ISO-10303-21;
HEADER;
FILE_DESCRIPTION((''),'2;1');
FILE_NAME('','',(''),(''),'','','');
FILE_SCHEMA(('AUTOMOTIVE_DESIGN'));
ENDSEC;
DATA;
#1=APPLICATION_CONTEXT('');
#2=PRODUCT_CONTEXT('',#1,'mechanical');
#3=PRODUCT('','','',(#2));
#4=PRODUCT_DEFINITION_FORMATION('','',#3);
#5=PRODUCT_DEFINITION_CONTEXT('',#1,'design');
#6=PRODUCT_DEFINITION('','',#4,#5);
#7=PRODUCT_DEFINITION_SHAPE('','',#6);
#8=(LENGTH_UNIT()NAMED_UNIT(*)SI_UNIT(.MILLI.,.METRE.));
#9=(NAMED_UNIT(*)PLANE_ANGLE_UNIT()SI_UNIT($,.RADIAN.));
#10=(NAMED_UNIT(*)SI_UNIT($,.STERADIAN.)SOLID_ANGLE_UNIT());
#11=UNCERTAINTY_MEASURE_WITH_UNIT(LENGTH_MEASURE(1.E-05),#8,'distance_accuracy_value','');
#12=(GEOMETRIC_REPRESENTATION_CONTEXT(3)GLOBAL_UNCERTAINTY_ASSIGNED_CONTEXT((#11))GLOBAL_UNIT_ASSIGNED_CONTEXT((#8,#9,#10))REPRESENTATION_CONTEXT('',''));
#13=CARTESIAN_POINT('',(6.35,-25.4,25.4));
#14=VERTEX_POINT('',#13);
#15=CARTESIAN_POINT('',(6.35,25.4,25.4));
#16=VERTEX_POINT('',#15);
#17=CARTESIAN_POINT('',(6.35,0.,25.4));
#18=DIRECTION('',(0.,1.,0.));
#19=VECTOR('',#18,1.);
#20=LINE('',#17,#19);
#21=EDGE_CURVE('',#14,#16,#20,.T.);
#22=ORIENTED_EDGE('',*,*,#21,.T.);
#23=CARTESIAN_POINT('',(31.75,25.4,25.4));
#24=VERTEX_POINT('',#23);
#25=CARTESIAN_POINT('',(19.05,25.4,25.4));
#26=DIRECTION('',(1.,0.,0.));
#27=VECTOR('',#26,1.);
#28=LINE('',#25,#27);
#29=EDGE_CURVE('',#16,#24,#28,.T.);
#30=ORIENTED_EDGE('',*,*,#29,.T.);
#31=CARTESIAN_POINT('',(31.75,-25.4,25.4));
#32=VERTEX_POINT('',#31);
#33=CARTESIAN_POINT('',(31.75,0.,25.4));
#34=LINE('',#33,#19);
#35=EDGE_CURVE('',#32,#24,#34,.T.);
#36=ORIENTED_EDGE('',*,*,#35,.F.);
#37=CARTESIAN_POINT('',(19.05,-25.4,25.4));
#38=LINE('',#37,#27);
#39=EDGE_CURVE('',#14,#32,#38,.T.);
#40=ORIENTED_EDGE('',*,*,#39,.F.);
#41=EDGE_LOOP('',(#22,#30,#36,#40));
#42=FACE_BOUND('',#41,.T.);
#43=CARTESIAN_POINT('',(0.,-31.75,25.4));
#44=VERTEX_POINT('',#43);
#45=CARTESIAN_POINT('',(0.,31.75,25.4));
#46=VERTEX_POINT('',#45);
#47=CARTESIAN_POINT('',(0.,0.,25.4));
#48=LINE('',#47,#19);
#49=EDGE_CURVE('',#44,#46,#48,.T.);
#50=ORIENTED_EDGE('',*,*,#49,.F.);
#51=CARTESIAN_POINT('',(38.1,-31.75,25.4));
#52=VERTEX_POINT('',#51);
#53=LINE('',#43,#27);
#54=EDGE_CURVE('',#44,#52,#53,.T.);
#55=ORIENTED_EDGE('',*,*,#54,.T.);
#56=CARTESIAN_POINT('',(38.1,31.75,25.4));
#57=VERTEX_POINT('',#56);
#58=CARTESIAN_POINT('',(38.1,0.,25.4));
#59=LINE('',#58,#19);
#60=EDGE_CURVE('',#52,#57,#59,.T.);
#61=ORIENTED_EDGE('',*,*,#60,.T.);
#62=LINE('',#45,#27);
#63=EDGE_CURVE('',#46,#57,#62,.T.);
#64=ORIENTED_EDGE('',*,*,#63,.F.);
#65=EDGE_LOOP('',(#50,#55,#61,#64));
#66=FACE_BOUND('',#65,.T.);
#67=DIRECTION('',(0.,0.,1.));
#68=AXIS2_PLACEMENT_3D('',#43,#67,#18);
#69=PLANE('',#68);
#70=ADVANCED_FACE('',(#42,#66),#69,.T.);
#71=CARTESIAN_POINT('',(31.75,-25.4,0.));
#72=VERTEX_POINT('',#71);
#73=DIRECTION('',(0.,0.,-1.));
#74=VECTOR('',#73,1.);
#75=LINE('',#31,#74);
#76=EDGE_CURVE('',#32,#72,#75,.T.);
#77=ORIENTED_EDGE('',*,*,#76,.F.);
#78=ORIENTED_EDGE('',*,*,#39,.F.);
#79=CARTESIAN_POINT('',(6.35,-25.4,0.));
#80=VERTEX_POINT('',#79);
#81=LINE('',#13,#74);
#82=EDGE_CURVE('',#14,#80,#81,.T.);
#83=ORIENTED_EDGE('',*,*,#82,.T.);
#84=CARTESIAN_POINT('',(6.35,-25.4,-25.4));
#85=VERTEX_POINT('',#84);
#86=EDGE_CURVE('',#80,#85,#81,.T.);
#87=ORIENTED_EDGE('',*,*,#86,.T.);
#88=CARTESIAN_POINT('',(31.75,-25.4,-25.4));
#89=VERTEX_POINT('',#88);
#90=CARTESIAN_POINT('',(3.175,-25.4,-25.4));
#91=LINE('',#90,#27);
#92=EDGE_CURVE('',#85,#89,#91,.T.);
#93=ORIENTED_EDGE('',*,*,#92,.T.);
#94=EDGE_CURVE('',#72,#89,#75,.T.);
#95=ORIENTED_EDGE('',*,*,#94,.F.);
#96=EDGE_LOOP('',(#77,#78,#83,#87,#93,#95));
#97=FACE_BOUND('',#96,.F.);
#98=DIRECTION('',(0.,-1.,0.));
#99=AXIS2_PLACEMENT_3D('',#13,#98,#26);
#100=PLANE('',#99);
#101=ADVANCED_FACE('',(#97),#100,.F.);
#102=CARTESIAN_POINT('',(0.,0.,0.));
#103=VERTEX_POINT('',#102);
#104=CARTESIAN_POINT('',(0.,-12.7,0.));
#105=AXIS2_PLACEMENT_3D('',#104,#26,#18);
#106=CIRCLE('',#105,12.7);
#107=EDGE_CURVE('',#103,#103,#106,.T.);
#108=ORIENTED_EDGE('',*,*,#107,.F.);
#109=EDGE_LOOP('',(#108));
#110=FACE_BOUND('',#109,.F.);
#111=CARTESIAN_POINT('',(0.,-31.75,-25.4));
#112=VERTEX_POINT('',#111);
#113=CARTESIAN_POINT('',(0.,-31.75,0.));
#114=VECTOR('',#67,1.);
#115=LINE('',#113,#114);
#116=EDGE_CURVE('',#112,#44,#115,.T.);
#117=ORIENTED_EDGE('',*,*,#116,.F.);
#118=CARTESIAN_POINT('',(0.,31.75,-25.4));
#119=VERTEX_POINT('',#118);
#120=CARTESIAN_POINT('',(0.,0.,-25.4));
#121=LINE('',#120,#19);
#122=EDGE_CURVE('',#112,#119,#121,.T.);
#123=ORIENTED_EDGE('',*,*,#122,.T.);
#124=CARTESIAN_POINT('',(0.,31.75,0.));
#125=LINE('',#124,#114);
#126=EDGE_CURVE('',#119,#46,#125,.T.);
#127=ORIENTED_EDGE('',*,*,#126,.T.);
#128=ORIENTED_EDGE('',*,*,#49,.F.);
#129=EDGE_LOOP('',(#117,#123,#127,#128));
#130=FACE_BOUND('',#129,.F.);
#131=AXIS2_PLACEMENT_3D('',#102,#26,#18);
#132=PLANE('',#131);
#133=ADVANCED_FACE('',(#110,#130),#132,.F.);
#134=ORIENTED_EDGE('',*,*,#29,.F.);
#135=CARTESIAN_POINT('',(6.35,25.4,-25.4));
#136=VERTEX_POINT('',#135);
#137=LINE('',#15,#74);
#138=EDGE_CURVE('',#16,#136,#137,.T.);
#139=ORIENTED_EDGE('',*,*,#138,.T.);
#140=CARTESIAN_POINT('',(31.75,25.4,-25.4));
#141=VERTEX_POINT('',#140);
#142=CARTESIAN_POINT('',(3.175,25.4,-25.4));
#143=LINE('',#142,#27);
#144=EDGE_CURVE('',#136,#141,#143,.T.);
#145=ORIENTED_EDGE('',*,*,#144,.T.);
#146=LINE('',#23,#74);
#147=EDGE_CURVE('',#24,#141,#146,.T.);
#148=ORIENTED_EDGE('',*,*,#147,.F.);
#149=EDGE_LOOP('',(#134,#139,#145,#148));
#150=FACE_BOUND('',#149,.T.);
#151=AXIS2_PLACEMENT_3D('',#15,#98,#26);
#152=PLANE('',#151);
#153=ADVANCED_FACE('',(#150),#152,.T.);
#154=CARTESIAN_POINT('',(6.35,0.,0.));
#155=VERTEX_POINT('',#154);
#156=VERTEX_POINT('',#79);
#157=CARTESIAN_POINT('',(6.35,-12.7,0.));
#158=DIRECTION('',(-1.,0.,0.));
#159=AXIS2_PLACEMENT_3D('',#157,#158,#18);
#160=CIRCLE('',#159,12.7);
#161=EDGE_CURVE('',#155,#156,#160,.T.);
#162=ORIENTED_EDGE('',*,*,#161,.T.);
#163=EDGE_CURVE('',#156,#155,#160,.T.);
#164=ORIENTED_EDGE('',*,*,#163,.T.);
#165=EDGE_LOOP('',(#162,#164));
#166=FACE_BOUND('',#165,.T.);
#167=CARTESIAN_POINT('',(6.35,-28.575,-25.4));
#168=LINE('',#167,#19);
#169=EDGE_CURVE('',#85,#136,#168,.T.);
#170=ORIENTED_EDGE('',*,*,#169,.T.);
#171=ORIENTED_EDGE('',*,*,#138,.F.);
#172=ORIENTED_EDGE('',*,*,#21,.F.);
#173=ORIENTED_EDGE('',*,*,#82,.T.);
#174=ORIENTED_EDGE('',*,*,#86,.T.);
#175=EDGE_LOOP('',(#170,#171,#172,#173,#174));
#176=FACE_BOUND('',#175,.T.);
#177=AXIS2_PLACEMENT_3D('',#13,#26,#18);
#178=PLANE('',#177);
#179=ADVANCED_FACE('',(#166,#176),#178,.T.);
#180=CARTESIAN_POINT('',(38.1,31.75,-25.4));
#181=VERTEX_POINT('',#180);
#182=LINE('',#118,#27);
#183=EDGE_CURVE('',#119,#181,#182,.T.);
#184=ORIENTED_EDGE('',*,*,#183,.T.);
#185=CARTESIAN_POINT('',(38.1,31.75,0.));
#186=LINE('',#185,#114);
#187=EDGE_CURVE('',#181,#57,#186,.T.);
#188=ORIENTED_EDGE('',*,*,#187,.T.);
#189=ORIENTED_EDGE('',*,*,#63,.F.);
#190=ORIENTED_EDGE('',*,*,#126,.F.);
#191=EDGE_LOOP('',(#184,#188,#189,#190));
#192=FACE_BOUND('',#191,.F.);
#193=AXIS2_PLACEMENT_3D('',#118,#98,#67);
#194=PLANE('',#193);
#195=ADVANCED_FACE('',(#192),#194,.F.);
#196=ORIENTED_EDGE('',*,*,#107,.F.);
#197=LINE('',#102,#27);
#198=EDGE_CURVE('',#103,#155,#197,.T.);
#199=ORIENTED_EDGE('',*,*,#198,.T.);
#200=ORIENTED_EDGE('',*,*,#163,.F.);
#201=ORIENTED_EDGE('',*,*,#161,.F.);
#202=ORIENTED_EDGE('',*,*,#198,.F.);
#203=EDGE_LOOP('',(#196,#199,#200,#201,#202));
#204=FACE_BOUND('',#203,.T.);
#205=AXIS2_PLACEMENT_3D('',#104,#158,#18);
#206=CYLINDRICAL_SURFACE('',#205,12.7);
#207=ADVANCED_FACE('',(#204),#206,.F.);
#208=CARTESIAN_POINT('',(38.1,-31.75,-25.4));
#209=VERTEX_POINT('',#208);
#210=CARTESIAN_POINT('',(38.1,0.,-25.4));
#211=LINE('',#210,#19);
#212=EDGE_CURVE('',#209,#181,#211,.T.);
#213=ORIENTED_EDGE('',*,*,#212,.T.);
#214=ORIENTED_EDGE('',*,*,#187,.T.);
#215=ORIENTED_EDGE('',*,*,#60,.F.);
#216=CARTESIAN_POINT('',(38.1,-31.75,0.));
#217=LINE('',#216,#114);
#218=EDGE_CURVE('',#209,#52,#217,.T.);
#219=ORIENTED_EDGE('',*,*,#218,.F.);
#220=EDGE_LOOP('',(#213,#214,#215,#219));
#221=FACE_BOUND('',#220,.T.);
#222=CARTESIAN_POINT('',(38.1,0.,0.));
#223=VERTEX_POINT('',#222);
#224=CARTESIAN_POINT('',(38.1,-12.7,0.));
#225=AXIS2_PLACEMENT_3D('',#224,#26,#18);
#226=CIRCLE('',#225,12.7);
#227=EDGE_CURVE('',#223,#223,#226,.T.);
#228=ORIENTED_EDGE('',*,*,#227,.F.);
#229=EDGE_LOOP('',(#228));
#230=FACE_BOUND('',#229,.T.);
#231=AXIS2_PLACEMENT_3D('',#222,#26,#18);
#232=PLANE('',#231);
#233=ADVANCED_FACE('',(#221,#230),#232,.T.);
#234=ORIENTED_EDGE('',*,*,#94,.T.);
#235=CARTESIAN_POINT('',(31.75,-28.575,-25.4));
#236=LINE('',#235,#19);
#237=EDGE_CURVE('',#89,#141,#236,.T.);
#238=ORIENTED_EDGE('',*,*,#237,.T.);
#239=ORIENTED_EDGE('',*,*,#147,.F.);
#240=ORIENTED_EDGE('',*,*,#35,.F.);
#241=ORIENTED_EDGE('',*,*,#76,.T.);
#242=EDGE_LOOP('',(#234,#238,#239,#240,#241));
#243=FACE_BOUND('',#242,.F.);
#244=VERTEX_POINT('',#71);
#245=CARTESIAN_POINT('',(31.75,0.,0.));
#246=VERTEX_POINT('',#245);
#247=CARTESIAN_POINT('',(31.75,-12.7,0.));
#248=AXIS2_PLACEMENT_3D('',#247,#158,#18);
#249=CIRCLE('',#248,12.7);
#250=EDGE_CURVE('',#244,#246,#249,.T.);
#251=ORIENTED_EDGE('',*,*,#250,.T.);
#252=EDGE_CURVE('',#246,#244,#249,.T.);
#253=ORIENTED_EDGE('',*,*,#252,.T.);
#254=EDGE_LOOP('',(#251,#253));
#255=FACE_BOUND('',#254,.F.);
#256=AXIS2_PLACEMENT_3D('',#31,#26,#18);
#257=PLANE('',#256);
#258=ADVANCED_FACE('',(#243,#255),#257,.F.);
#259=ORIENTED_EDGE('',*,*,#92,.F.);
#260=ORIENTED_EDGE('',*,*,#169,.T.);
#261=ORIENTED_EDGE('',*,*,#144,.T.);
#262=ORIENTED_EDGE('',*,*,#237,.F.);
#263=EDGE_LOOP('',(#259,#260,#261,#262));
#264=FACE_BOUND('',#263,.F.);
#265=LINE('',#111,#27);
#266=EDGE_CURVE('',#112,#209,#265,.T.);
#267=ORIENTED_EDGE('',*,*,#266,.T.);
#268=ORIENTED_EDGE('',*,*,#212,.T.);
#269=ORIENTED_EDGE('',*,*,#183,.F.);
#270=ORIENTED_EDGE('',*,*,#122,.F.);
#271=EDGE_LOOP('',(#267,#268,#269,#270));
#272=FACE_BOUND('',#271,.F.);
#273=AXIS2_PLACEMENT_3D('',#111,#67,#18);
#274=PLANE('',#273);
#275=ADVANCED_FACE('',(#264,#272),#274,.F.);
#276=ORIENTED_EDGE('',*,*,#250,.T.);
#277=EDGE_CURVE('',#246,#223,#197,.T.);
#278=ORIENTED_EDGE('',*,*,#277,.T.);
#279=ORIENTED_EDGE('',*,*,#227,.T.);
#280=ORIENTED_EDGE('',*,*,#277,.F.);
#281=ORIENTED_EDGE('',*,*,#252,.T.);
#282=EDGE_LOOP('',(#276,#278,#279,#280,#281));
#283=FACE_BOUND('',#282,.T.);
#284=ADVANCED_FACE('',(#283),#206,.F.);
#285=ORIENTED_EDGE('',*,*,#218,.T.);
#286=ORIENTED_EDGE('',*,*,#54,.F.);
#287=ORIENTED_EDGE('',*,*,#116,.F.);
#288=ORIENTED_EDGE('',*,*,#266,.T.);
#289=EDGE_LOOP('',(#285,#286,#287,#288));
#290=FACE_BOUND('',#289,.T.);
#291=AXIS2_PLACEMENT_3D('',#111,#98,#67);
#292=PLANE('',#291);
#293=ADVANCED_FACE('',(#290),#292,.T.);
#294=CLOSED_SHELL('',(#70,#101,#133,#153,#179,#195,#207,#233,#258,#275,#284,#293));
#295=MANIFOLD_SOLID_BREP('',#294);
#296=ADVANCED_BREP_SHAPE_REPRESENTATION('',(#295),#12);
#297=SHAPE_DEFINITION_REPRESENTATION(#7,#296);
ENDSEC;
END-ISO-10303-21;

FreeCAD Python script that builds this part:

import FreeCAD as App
import Part
import Sketcher

V = App.Vector
Q = App.Units.Quantity

doc = App.newDocument("Part")
body = doc.addObject("PartDesign::Body", "Body")

# Sketch on YZ plane
sketch1 = body.newObject("Sketcher::SketchObject", "Sketch")
sketch1.AttachmentSupport = (doc.getObject("YZ_Plane"), [""])
sketch1.MapMode = "FlatFace"
sketch1.addGeometry([
    Part.LineSegment(V(-32, 25, 0), V(-32, -25, 0)),  # 0
    Part.LineSegment(V(-32, -25, 0), V(32, -25, 0)),  # 1
    Part.LineSegment(V(32, -25, 0), V(32, 25, 0)),  # 2
    Part.LineSegment(V(32, 25, 0), V(-32, 25, 0)),  # 3
    Part.Circle(V(-13, 0, 0), V(0, 0, 1), 13),  # 4
], False)
sketch1.addConstraint([
    Sketcher.Constraint("Coincident", 0, 2, 1, 1),
    Sketcher.Constraint("Coincident", 1, 2, 2, 1),
    Sketcher.Constraint("Coincident", 2, 2, 3, 1),
    Sketcher.Constraint("Coincident", 3, 2, 0, 1),
    Sketcher.Constraint("Vertical", 0),
    Sketcher.Constraint("Horizontal", 1),
    Sketcher.Constraint("Vertical", 2),
    Sketcher.Constraint("Horizontal", 3),
    Sketcher.Constraint("Symmetric", 0, 2, 2, 2, -1, 1),
    Sketcher.Constraint("PointOnObject", 4, 3, -1),
    Sketcher.Constraint("Diameter", 4, Q("1 in")),
    Sketcher.Constraint("DistanceY", 0, 2, 0, 1, Q("2 in")),
    Sketcher.Constraint("DistanceX", 1, 1, 1, 2, Q("2.5 in")),
    Sketcher.Constraint("DistanceX", 4, 3, -1, 1, Q("0.5 in")),
])
pad1 = body.newObject("PartDesign::Pad", "Pad")
pad1.Profile = sketch1
pad1.Length = Q("1.5 in")

# Sketch on XY plane
sketch2 = body.newObject("Sketcher::SketchObject", "Sketch001")
sketch2.AttachmentSupport = (doc.getObject("XY_Plane"), [""])
sketch2.MapMode = "FlatFace"
sketch2.AttachmentOffset = App.Placement(V(0, 0, 1 * 25.4), App.Rotation())
sketch2.addGeometry([
    Part.LineSegment(V(6, 25, 0), V(6, -25, 0)),
    Part.LineSegment(V(6, -25, 0), V(32, -25, 0)),
    Part.LineSegment(V(32, -25, 0), V(32, 25, 0)),
    Part.LineSegment(V(32, 25, 0), V(6, 25, 0)),
], False)
sketch2.addConstraint([
    Sketcher.Constraint("Coincident", 0, 2, 1, 1),
    Sketcher.Constraint("Coincident", 1, 2, 2, 1),
    Sketcher.Constraint("Coincident", 2, 2, 3, 1),
    Sketcher.Constraint("Coincident", 3, 2, 0, 1),
    Sketcher.Constraint("Vertical", 0),
    Sketcher.Constraint("Horizontal", 1),
    Sketcher.Constraint("Vertical", 2),
    Sketcher.Constraint("Horizontal", 3),
    Sketcher.Constraint("DistanceX", 1, 1, 1, 2, Q("1 in")),
    Sketcher.Constraint("DistanceY", 0, 2, 0, 1, Q("2 in")),
    Sketcher.Constraint("DistanceY", 0, 2, -1, 1, Q("1 in")),
    Sketcher.Constraint("DistanceX", -1, 1, 0, 2, Q("0.25 in")),
])
pocket1 = body.newObject("PartDesign::Pocket", "Pocket")
pocket1.Profile = sketch2
pocket1.Type = "ThroughAll"

doc.recompute()
